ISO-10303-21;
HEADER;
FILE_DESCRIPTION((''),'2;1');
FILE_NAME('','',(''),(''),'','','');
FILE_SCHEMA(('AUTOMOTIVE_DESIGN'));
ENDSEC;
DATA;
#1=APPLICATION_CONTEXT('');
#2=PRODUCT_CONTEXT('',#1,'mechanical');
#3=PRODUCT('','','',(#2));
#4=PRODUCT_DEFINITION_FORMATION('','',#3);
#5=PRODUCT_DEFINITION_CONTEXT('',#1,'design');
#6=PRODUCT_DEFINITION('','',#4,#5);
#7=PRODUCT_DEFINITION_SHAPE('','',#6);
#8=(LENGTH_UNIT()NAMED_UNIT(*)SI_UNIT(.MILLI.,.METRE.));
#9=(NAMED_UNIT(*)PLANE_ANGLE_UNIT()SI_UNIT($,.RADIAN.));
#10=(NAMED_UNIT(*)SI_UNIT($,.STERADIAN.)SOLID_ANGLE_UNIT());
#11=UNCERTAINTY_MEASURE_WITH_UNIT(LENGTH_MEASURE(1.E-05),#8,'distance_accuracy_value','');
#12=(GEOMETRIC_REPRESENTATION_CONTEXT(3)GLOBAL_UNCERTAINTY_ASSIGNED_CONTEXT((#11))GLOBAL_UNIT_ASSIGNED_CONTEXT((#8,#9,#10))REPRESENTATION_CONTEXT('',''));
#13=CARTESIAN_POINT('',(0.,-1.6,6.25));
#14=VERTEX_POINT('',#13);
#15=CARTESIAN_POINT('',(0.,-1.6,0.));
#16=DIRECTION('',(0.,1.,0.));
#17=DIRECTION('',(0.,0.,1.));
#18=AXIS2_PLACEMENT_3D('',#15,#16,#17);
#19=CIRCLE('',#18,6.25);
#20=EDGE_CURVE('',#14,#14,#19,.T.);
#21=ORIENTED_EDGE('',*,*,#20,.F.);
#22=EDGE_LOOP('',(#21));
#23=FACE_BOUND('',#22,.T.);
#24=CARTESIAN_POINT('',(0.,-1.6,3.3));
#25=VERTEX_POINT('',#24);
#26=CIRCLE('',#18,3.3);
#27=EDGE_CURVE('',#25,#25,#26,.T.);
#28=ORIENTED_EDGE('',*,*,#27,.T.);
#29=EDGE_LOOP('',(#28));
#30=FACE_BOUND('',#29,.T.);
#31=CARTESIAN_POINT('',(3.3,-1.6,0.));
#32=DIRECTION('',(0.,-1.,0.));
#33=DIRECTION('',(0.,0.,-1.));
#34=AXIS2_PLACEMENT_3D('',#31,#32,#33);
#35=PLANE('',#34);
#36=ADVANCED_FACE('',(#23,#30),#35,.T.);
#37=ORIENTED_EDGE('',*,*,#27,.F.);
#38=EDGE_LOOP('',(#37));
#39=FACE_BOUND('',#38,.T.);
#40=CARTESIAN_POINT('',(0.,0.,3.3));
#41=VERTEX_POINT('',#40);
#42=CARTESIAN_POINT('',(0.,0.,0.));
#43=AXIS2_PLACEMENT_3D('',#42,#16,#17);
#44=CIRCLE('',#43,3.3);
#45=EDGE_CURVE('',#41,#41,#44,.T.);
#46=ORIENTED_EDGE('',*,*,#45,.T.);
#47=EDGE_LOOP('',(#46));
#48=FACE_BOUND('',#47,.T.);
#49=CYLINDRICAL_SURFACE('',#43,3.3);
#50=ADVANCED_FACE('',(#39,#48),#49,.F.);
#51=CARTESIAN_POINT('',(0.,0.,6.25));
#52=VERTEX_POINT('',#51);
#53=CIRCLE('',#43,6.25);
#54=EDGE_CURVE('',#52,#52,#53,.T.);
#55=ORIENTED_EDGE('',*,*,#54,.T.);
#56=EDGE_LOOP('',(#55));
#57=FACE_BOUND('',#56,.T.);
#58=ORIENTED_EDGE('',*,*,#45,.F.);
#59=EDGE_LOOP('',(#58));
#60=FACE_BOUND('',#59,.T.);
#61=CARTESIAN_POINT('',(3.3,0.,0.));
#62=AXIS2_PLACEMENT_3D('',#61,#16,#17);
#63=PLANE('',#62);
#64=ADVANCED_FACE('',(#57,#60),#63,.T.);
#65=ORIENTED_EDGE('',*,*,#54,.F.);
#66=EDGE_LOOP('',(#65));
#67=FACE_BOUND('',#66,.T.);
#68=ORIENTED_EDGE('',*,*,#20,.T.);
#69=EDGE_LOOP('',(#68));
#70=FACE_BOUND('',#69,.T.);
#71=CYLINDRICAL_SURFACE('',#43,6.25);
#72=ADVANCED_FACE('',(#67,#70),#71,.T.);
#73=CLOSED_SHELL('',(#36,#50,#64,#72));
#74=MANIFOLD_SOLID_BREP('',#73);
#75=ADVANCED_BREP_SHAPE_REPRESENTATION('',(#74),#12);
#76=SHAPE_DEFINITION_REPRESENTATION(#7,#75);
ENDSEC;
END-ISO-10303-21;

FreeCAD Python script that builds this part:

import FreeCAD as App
import Part
import Sketcher
Q = App.Units.Quantity


def add_polygon(sketch, points):
    """Adds a closed chain of lines whose ends are joined by coincident constraints."""
    first, n = sketch.GeometryCount, len(points)
    for a, b in zip(points, points[1:] + points[:1]):
        sketch.addGeometry(Part.LineSegment(App.Vector(*a, 0), App.Vector(*b, 0)), False)
    for i in range(n):
        sketch.addConstraint(Sketcher.Constraint("Coincident", first + i, 2, first + (i + 1) % n, 1))

doc = App.newDocument("Part")
body = doc.addObject("PartDesign::Body", "Body")

sketch1 = body.newObject("Sketcher::SketchObject", "Sketch")
sketch1.AttachmentSupport = (doc.getObject("XY_Plane"), [""])
sketch1.MapMode = "FlatFace"
add_polygon(sketch1, [(3.3, -1.6), (3.3, 0), (6.2, 0), (6.2, -1.6)])
sketch1.addConstraint([
    Sketcher.Constraint("Vertical", 0),
    Sketcher.Constraint("Horizontal", 1),
    Sketcher.Constraint("Vertical", 2),
    Sketcher.Constraint("Horizontal", 3),
    Sketcher.Constraint("PointOnObject", 0, 2, -1),
    Sketcher.Constraint("DistanceY", 0, 1, 0, 2, Q("1.6 mm")),
    Sketcher.Constraint("DistanceX", 1, 1, 1, 2, Q("2.95 mm")),
    Sketcher.Constraint("DistanceX", -1, 1, 0, 2, Q("3.3 mm")),
])
revolution = body.newObject("PartDesign::Revolution", "Revolution")
revolution.Profile = sketch1
revolution.ReferenceAxis = (sketch1, ["V_Axis"])
revolution.Angle = 360

doc.recompute()
